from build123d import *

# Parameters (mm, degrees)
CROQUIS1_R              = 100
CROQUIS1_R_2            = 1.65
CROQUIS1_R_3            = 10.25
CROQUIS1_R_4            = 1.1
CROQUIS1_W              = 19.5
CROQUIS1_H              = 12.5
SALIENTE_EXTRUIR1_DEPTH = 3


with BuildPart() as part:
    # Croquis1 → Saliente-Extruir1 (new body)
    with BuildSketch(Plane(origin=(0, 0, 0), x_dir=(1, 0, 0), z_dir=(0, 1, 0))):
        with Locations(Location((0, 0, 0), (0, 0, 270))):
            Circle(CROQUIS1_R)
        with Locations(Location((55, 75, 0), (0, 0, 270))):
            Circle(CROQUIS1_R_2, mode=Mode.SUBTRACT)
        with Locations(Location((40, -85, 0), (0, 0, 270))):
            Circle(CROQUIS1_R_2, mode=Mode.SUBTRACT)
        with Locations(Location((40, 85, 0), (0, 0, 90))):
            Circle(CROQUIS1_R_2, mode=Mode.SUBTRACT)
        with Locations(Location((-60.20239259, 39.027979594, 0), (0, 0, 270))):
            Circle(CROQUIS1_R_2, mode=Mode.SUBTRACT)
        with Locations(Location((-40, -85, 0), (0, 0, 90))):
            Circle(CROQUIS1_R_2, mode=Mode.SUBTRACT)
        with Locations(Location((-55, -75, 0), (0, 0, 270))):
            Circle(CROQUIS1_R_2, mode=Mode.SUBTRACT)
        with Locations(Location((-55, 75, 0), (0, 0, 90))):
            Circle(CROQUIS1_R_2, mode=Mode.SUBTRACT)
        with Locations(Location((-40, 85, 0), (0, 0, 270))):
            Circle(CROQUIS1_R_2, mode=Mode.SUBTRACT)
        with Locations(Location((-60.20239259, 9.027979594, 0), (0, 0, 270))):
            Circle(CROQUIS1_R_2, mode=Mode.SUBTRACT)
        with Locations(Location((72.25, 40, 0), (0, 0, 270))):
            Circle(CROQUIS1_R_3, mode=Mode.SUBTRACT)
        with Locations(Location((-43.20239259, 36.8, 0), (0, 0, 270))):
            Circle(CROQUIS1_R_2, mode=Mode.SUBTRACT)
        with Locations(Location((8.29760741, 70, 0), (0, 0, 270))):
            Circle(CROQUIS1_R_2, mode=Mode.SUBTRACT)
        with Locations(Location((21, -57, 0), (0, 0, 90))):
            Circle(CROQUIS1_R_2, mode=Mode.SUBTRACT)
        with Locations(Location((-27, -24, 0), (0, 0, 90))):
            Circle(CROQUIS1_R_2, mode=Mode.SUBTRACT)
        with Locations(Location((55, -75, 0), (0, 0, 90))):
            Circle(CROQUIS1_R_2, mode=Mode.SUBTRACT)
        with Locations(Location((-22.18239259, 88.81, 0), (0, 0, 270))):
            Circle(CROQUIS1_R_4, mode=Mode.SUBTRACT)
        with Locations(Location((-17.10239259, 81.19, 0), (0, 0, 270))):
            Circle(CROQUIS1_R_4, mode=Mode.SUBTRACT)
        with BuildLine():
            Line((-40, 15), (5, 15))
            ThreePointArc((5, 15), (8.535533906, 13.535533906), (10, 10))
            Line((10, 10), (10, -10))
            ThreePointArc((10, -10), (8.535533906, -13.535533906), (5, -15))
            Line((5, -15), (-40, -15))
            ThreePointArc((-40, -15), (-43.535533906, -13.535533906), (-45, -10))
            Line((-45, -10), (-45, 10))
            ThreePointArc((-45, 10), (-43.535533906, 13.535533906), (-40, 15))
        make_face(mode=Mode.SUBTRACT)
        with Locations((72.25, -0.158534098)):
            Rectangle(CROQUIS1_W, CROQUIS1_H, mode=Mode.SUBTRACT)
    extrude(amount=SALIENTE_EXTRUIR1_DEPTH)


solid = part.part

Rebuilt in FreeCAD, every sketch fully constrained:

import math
import FreeCAD as App
import Part
import Sketcher

doc = App.newDocument("Part")
body = doc.addObject("PartDesign::Body", "Body")

# Sketch on XZ plane
sketch1 = doc.addObject("Sketcher::SketchObject", "Sketch")
body.addObject(sketch1)
sketch1.AttachmentSupport = (doc.XZ_Plane, [""])
sketch1.MapMode = "FlatFace"
sketch1.addGeometry(Part.Circle(App.Vector(0, 0, 0), App.Vector(0, 0, 1), 100), False)
sketch1.addGeometry(Part.Circle(App.Vector(-55, -75, 0), App.Vector(0, 0, 1), 1.6), False)
sketch1.addGeometry(Part.Circle(App.Vector(-40, -85, 0), App.Vector(0, 0, 1), 1.6), False)
sketch1.addGeometry(Part.Circle(App.Vector(-60.2, -39, 0), App.Vector(0, 0, 1), 1.6), False)
sketch1.addGeometry(Part.Circle(App.Vector(-60.2, -9, 0), App.Vector(0, 0, 1), 1.6), False)
sketch1.addGeometry(Part.Circle(App.Vector(-43.2, -36.8, 0), App.Vector(0, 0, 1), 1.6), False)
sketch1.addGeometry(Part.Circle(App.Vector(-22.2, -88.8, 0), App.Vector(0, 0, 1), 1.1), False)
sketch1.addGeometry(Part.Circle(App.Vector(-17.1, -81.2, 0), App.Vector(0, 0, 1), 1.1), False)
sketch1.addGeometry(Part.Circle(App.Vector(8.3, -70, 0), App.Vector(0, 0, 1), 1.6), False)
sketch1.addGeometry(Part.Circle(App.Vector(-27, 24, 0), App.Vector(0, 0, 1), 1.6), False)
sketch1.addGeometry(Part.Circle(App.Vector(-55, 75, 0), App.Vector(0, 0, 1), 1.6), False)
sketch1.addGeometry(Part.Circle(App.Vector(-40, 85, 0), App.Vector(0, 0, 1), 1.6), False)
sketch1.addGeometry(Part.ArcOfCircle(Part.Circle(App.Vector(-40, -10, 0), App.Vector(0, 0, 1), 5), math.radians(180), math.radians(270)), False)
sketch1.addGeometry(Part.LineSegment(App.Vector(-40, -15, 0), App.Vector(5, -15, 0)), False)
sketch1.addGeometry(Part.ArcOfCircle(Part.Circle(App.Vector(5, -10, 0), App.Vector(0, 0, 1), 5), math.radians(-90), math.radians(0)), False)
sketch1.addGeometry(Part.LineSegment(App.Vector(10, -10, 0), App.Vector(10, 10, 0)), False)
sketch1.addGeometry(Part.ArcOfCircle(Part.Circle(App.Vector(5, 10, 0), App.Vector(0, 0, 1), 5), math.radians(0), math.radians(90)), False)
sketch1.addGeometry(Part.LineSegment(App.Vector(5, 15, 0), App.Vector(-40, 15, 0)), False)
sketch1.addGeometry(Part.ArcOfCircle(Part.Circle(App.Vector(-40, 10, 0), App.Vector(0, 0, 1), 5), math.radians(90), math.radians(180)), False)
sketch1.addGeometry(Part.LineSegment(App.Vector(-45, 10, 0), App.Vector(-45, -10, 0)), False)
sketch1.addGeometry(Part.Circle(App.Vector(40, -85, 0), App.Vector(0, 0, 1), 1.6), False)
sketch1.addGeometry(Part.Circle(App.Vector(55, -75, 0), App.Vector(0, 0, 1), 1.6), False)
sketch1.addGeometry(Part.Circle(App.Vector(72.2, -40, 0), App.Vector(0, 0, 1), 10.2), False)
sketch1.addGeometry(Part.Circle(App.Vector(21, 57, 0), App.Vector(0, 0, 1), 1.6), False)
sketch1.addGeometry(Part.Circle(App.Vector(40, 85, 0), App.Vector(0, 0, 1), 1.6), False)
sketch1.addGeometry(Part.LineSegment(App.Vector(82, 6.4, 0), App.Vector(62.5, 6.4, 0)), False)
sketch1.addGeometry(Part.LineSegment(App.Vector(62.5, 6.4, 0), App.Vector(62.5, -6.1, 0)), False)
sketch1.addGeometry(Part.LineSegment(App.Vector(62.5, -6.1, 0), App.Vector(82, -6.1, 0)), False)
sketch1.addGeometry(Part.LineSegment(App.Vector(82, -6.1, 0), App.Vector(82, 6.4, 0)), False)
sketch1.addGeometry(Part.Circle(App.Vector(55, 75, 0), App.Vector(0, 0, 1), 1.6), False)
sketch1.addConstraint(Sketcher.Constraint("Tangent", 12, 2, 13, 1))
sketch1.addConstraint(Sketcher.Constraint("Tangent", 13, 2, 14, 1))
sketch1.addConstraint(Sketcher.Constraint("Tangent", 14, 2, 15, 1))
sketch1.addConstraint(Sketcher.Constraint("Tangent", 15, 2, 16, 1))
sketch1.addConstraint(Sketcher.Constraint("Tangent", 16, 2, 17, 1))
sketch1.addConstraint(Sketcher.Constraint("Tangent", 17, 2, 18, 1))
sketch1.addConstraint(Sketcher.Constraint("Tangent", 18, 2, 19, 1))
sketch1.addConstraint(Sketcher.Constraint("Tangent", 19, 2, 12, 1))
sketch1.addConstraint(Sketcher.Constraint("Coincident", 25, 2, 26, 1))
sketch1.addConstraint(Sketcher.Constraint("Coincident", 26, 2, 27, 1))
sketch1.addConstraint(Sketcher.Constraint("Coincident", 27, 2, 28, 1))
sketch1.addConstraint(Sketcher.Constraint("Coincident", 28, 2, 25, 1))
sketch1.addConstraint(Sketcher.Constraint("Horizontal", 13))
sketch1.addConstraint(Sketcher.Constraint("Vertical", 15))
sketch1.addConstraint(Sketcher.Constraint("Horizontal", 17))
sketch1.addConstraint(Sketcher.Constraint("Vertical", 19))
sketch1.addConstraint(Sketcher.Constraint("Horizontal", 25))
sketch1.addConstraint(Sketcher.Constraint("Vertical", 26))
sketch1.addConstraint(Sketcher.Constraint("Horizontal", 27))
sketch1.addConstraint(Sketcher.Constraint("Vertical", 28))
sketch1.addConstraint(Sketcher.Constraint("Coincident", 0, 3, -1, 1))
sketch1.addConstraint(Sketcher.Constraint("Equal", 1, 2))
sketch1.addConstraint(Sketcher.Constraint("Equal", 2, 3))
sketch1.addConstraint(Sketcher.Constraint("Equal", 3, 4))
sketch1.addConstraint(Sketcher.Constraint("Equal", 4, 5))
sketch1.addConstraint(Sketcher.Constraint("Equal", 6, 7))
sketch1.addConstraint(Sketcher.Constraint("Equal", 5, 8))
sketch1.addConstraint(Sketcher.Constraint("Equal", 8, 9))
sketch1.addConstraint(Sketcher.Constraint("Equal", 9, 10))
sketch1.addConstraint(Sketcher.Constraint("Equal", 10, 11))
sketch1.addConstraint(Sketcher.Constraint("Equal", 12, 14))
sketch1.addConstraint(Sketcher.Constraint("Equal", 14, 16))
sketch1.addConstraint(Sketcher.Constraint("Equal", 16, 18))
sketch1.addConstraint(Sketcher.Constraint("Equal", 11, 20))
sketch1.addConstraint(Sketcher.Constraint("Equal", 20, 21))
sketch1.addConstraint(Sketcher.Constraint("Equal", 21, 23))
sketch1.addConstraint(Sketcher.Constraint("Equal", 23, 24))
sketch1.addConstraint(Sketcher.Constraint("Equal", 24, 29))
sketch1.addConstraint(Sketcher.Constraint("Symmetric", 11, 3, 20, 3, -1, 1))
sketch1.addConstraint(Sketcher.Constraint("Symmetric", 10, 3, 21, 3, -1, 1))
sketch1.addConstraint(Sketcher.Constraint("Symmetric", 2, 3, 24, 3, -1, 1))
sketch1.addConstraint(Sketcher.Constraint("Symmetric", 1, 3, 29, 3, -1, 1))
sketch1.addConstraint(Sketcher.Constraint("Symmetric", 2, 3, 20, 3, -2))
sketch1.addConstraint(Sketcher.Constraint("Symmetric", 1, 3, 21, 3, -2))
sketch1.addConstraint(Sketcher.Constraint("Vertical", 3, 3, 4, 3))
sketch1.addConstraint(Sketcher.Constraint("Vertical", 11, 3, 12, 3))
sketch1.addConstraint(Sketcher.Constraint("Diameter", 0, 200.0))
sketch1.addConstraint(Sketcher.Constraint("Radius", 12, 5.0))
sketch1.addConstraint(Sketcher.Constraint("Diameter", 1, 3.3))
sketch1.addConstraint(Sketcher.Constraint("Diameter", 6, 2.2))
sketch1.addConstraint(Sketcher.Constraint("Diameter", 22, 20.5))
sketch1.addConstraint(Sketcher.Constraint("DistanceX", 13, 1, 13, 2, 45.0))
sketch1.addConstraint(Sketcher.Constraint("DistanceY", 15, 1, 15, 2, 20.0))
sketch1.addConstraint(Sketcher.Constraint("DistanceX", 25, 2, 25, 1, 19.5))
sketch1.addConstraint(Sketcher.Constraint("DistanceY", 26, 2, 26, 1, 12.5))
sketch1.addConstraint(Sketcher.Constraint("DistanceX", 1, 3, -1, 1, 55.0))
sketch1.addConstraint(Sketcher.Constraint("DistanceY", 1, 3, -1, 1, 75.0))
sketch1.addConstraint(Sketcher.Constraint("DistanceX", 2, 3, -1, 1, 40.0))
sketch1.addConstraint(Sketcher.Constraint("DistanceY", 2, 3, -1, 1, 85.0))
sketch1.addConstraint(Sketcher.Constraint("DistanceY", 8, 3, -1, 1, 70.0))
sketch1.addConstraint(Sketcher.Constraint("DistanceX", 9, 3, -1, 1, 27.0))
sketch1.addConstraint(Sketcher.Constraint("DistanceY", -1, 1, 9, 3, 24.0))
sketch1.addConstraint(Sketcher.Constraint("DistanceY", 12, 3, -1, 1, 10.0))
sketch1.addConstraint(Sketcher.Constraint("DistanceY", 22, 3, -1, 1, 40.0))
sketch1.addConstraint(Sketcher.Constraint("DistanceX", -1, 1, 23, 3, 21.0))
sketch1.addConstraint(Sketcher.Constraint("DistanceY", -1, 1, 23, 3, 57.0))
sketch1.addConstraint(Sketcher.Constraint("DistanceX", -1, 1, 27, 2, 82.0))
sketch1.addConstraint(Sketcher.Constraint("DistanceY", 3, 3, 4, 3, 30.0))
sketch1.addConstraint(Sketcher.Constraint("DistanceX", 3, 3, 5, 3, 17.0))
sketch1.addConstraint(Sketcher.Constraint("DistanceY", 5, 3, -1, 1, 36.8))
sketch1.addConstraint(Sketcher.Constraint("DistanceX", 5, 3, 7, 3, 26.1))
sketch1.addConstraint(Sketcher.Constraint("DistanceX", 7, 3, 8, 3, 25.4))
sketch1.addConstraint(Sketcher.Constraint("DistanceY", 6, 3, -1, 1, 88.81))
sketch1.addConstraint(Sketcher.Constraint("DistanceY", 7, 3, -1, 1, 81.19))
sketch1.addConstraint(Sketcher.Constraint("DistanceX", -1, 1, 22, 3, 72.25))
sketch1.addConstraint(Sketcher.Constraint("DistanceX", 5, 3, 6, 3, 21.02))
sketch1.addConstraint(Sketcher.Constraint("DistanceY", 3, 3, -1, 1, 39.02798))
sketch1.addConstraint(Sketcher.Constraint("DistanceX", 3, 3, -1, 1, 60.202393))
sketch1.addConstraint(Sketcher.Constraint("DistanceY", -1, 1, 25, 2, 6.408534))
pad1 = doc.addObject("PartDesign::Pad", "Pad")
body.addObject(pad1)
pad1.Profile = sketch1
pad1.Length = 3
pad1.Reversed = True

doc.recompute()
